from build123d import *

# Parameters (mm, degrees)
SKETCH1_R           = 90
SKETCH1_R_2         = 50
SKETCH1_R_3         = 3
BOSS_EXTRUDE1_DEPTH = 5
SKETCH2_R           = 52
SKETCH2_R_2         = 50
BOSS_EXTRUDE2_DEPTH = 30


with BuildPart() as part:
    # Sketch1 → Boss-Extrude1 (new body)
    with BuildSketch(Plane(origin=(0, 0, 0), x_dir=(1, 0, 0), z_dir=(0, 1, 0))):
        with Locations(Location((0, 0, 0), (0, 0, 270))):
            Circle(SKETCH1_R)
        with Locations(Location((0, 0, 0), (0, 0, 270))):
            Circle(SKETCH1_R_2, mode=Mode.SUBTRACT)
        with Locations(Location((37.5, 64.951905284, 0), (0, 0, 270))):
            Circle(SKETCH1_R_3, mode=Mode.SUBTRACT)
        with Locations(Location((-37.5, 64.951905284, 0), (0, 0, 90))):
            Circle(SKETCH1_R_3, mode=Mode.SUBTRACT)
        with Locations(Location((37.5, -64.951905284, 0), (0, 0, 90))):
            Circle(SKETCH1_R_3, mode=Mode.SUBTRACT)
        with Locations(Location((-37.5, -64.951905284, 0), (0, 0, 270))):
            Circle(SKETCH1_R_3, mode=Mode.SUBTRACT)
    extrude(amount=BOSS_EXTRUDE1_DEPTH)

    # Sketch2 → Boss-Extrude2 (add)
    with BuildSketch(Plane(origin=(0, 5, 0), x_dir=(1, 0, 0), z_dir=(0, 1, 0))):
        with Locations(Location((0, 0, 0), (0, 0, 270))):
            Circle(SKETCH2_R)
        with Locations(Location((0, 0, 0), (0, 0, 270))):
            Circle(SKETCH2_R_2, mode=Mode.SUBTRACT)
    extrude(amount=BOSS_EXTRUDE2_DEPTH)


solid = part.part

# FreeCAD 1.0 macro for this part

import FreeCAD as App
import Part
import Sketcher

V = App.Vector

doc = App.newDocument("Part")
body = doc.addObject("PartDesign::Body", "Body")

# Sketch on XZ plane
sketch1 = body.newObject("Sketcher::SketchObject", "Sketch")
sketch1.AttachmentSupport = (doc.getObject("XZ_Plane"), [""])
sketch1.MapMode = "FlatFace"
sketch1.addGeometry([
    Part.Circle(V(0, 0, 0), V(0, 0, 1), 90),  # 0
    Part.Circle(V(-37.5, -65, 0), V(0, 0, 1), 3),  # 1
    Part.Circle(V(-37.5, 65, 0), V(0, 0, 1), 3),  # 2
    Part.Circle(V(37.5, -65, 0), V(0, 0, 1), 3),  # 3
    Part.Circle(V(0, 0, 0), V(0, 0, 1), 50),  # 4
    Part.Circle(V(37.5, 65, 0), V(0, 0, 1), 3),  # 5
], False)
sketch1.addConstraint([
    Sketcher.Constraint("Coincident", 0, 3, -1, 1),
    Sketcher.Constraint("Coincident", 4, 3, -1, 1),
    Sketcher.Constraint("Equal", 1, 2),
    Sketcher.Constraint("Equal", 2, 3),
    Sketcher.Constraint("Equal", 3, 5),
    Sketcher.Constraint("Symmetric", 2, 3, 3, 3, -1, 1),
    Sketcher.Constraint("Symmetric", 1, 3, 5, 3, -1, 1),
    Sketcher.Constraint("Symmetric", 1, 3, 3, 3, -2),
    Sketcher.Constraint("Diameter", 0, 180.0),
    Sketcher.Constraint("Diameter", 1, 6.0),
    Sketcher.Constraint("Diameter", 4, 100.0),
    Sketcher.Constraint("DistanceX", 1, 3, 3, 3, 75.0),
    Sketcher.Constraint("DistanceY", 1, 3, 2, 3, 129.903811),
])
pad1 = body.newObject("PartDesign::Pad", "Pad")
pad1.Profile = sketch1
pad1.Length = 5
pad1.Reversed = True

# Sketch on XZ plane
sketch2 = body.newObject("Sketcher::SketchObject", "Sketch001")
sketch2.AttachmentSupport = (doc.getObject("XZ_Plane"), [""])
sketch2.MapMode = "FlatFace"
sketch2.AttachmentOffset = App.Placement(V(0, 0, -5), App.Rotation())
sketch2.addGeometry([
    Part.Circle(V(0, 0, 0), V(0, 0, 1), 52),
    Part.Circle(V(0, 0, 0), V(0, 0, 1), 50),
], False)
sketch2.addConstraint([
    Sketcher.Constraint("Coincident", 0, 3, -1, 1),
    Sketcher.Constraint("Coincident", 1, 3, -1, 1),
    Sketcher.Constraint("Diameter", 0, 104.0),
    Sketcher.Constraint("Diameter", 1, 100.0),
])
pad2 = body.newObject("PartDesign::Pad", "Pad001")
pad2.Profile = sketch2
pad2.Length = 30
pad2.Reversed = True

doc.recompute()
